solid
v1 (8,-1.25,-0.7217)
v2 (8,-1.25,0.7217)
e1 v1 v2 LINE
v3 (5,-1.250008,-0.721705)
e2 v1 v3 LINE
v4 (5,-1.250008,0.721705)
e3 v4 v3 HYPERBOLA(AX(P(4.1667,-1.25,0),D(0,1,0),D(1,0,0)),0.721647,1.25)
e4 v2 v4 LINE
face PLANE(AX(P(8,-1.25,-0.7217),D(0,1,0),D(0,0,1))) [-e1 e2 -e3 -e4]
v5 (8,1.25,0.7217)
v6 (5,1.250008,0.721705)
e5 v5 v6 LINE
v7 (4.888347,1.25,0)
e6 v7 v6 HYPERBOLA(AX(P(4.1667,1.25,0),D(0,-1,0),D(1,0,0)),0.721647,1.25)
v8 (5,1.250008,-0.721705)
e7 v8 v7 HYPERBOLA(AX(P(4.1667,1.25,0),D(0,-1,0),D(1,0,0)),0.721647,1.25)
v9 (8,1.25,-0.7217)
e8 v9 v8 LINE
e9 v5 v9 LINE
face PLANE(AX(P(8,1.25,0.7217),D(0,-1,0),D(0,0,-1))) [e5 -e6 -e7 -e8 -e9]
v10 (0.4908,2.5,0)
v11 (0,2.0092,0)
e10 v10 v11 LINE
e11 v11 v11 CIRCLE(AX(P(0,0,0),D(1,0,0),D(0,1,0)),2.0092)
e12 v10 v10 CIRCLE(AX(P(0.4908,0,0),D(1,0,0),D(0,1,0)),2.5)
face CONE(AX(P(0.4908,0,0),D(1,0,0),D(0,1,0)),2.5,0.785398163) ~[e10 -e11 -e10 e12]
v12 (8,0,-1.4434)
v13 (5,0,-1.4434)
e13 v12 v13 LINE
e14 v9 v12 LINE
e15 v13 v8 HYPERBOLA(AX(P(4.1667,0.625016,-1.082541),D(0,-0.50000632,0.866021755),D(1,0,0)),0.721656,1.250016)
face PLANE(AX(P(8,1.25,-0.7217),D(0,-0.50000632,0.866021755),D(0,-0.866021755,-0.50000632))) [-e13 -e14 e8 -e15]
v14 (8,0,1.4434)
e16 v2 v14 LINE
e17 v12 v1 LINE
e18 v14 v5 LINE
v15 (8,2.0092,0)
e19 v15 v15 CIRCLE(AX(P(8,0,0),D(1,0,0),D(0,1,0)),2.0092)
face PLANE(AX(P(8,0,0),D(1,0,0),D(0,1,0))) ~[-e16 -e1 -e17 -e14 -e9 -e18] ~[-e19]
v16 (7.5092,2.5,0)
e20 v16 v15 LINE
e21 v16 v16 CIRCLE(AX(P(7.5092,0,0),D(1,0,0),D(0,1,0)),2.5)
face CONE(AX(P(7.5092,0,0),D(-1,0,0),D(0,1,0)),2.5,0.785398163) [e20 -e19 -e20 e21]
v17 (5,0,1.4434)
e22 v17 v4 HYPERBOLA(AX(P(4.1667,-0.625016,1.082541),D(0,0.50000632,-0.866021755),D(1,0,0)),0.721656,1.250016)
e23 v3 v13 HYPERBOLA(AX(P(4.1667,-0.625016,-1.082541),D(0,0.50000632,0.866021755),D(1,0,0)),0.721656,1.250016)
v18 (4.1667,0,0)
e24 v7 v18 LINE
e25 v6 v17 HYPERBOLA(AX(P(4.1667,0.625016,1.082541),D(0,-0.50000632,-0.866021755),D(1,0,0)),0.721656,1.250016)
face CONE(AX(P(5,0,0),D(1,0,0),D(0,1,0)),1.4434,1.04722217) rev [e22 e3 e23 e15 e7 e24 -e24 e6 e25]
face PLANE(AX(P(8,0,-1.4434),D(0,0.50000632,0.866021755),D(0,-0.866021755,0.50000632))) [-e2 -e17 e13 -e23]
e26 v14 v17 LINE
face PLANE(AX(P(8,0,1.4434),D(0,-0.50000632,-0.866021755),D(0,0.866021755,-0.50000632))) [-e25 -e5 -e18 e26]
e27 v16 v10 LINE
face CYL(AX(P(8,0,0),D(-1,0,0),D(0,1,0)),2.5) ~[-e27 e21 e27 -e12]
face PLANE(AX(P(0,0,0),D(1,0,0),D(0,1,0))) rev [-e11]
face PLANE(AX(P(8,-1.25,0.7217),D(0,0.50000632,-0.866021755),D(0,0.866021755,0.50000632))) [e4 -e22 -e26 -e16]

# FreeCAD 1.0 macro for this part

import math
import FreeCAD as App
import Part
import Sketcher
Q = App.Units.Quantity


def edges_at(feature, points):
    """Names of the edges that pass closest to the given points."""
    edges = feature.Shape.Edges
    near = lambda p: min(range(len(edges)), key=lambda i: edges[i].distToShape(Part.Vertex(*p))[0])
    return sorted({f"Edge{near(p) + 1}" for p in points})

doc = App.newDocument("Part")
body = doc.addObject("PartDesign::Body", "Body")

# Sketch on XY plane
sketch1 = body.newObject("Sketcher::SketchObject", "Sketch")
sketch1.AttachmentSupport = (doc.getObject("XY_Plane"), [""])
sketch1.MapMode = "FlatFace"
sketch1.addGeometry(Part.LineSegment(App.Vector(0, 2.5, 0), App.Vector(0, 0, 0)), False)
sketch1.addGeometry(Part.LineSegment(App.Vector(0, 0, 0), App.Vector(4.2, 0, 0)), False)
sketch1.addGeometry(Part.LineSegment(App.Vector(4.2, 0, 0), App.Vector(5, 1.4, 0)), False)
sketch1.addGeometry(Part.LineSegment(App.Vector(5, 1.4, 0), App.Vector(8, 1.4, 0)), False)
sketch1.addGeometry(Part.LineSegment(App.Vector(8, 1.4, 0), App.Vector(8, 2.5, 0)), False)
sketch1.addGeometry(Part.LineSegment(App.Vector(8, 2.5, 0), App.Vector(0, 2.5, 0)), False)
sketch1.addConstraint(Sketcher.Constraint("Coincident", 0, 2, 1, 1))
sketch1.addConstraint(Sketcher.Constraint("Coincident", 1, 2, 2, 1))
sketch1.addConstraint(Sketcher.Constraint("Coincident", 2, 2, 3, 1))
sketch1.addConstraint(Sketcher.Constraint("Coincident", 3, 2, 4, 1))
sketch1.addConstraint(Sketcher.Constraint("Coincident", 4, 2, 5, 1))
sketch1.addConstraint(Sketcher.Constraint("Coincident", 5, 2, 0, 1))
sketch1.addConstraint(Sketcher.Constraint("Vertical", 0))
sketch1.addConstraint(Sketcher.Constraint("Horizontal", 1))
sketch1.addConstraint(Sketcher.Constraint("Horizontal", 3))
sketch1.addConstraint(Sketcher.Constraint("Vertical", 4))
sketch1.addConstraint(Sketcher.Constraint("Horizontal", 5))
sketch1.addConstraint(Sketcher.Constraint("Coincident", 0, 2, -1, 1))
sketch1.addConstraint(Sketcher.Constraint("DistanceX", 3, 1, 3, 2, Q("3 mm")))
sketch1.addConstraint(Sketcher.Constraint("DistanceX", 5, 2, 5, 1, Q("8 mm")))
sketch1.addConstraint(Sketcher.Constraint("DistanceY", 0, 2, 0, 1, Q("2.5 mm")))
sketch1.addConstraint(Sketcher.Constraint("DistanceX", 1, 1, 1, 2, Q("4.1667 mm")))
sketch1.addConstraint(Sketcher.Constraint("DistanceY", 4, 1, 4, 2, Q("1.0566 mm")))
revolution = body.newObject("PartDesign::Revolution", "Revolution")
revolution.Profile = sketch1
revolution.ReferenceAxis = (sketch1, ["H_Axis"])
revolution.Angle = 360
doc.recompute()

chamfer = body.newObject("PartDesign::Chamfer", "Chamfer")
chamfer.Base = (revolution, edges_at(revolution, [(8, -2.5, 0)]))
chamfer.Size = 0.4908

# Sketch on YZ plane
sketch2 = body.newObject("Sketcher::SketchObject", "Sketch001")
sketch2.AttachmentSupport = (doc.getObject("YZ_Plane"), [""])
sketch2.MapMode = "FlatFace"
sketch2.AttachmentOffset = App.Placement(App.Vector(0, 0, 8), App.Rotation())
sketch2.addGeometry(Part.LineSegment(App.Vector(1.2, -0.7, 0), App.Vector(0, -1.4, 0)), False)
sketch2.addGeometry(Part.ArcOfCircle(Part.Circle(App.Vector(0, 0, 0), App.Vector(0, 0, 1), 1.4), math.radians(-90), math.radians(-30)), False)
sketch2.addGeometry(Part.ArcOfCircle(Part.Circle(App.Vector(0, 0, 0), App.Vector(0, 0, 1), 1.4), math.radians(-150), math.radians(-90)), False)
sketch2.addGeometry(Part.LineSegment(App.Vector(0, -1.4, 0), App.Vector(-1.2, -0.7, 0)), False)
sketch2.addGeometry(Part.LineSegment(App.Vector(1.2, 0.7, 0), App.Vector(1.2, -0.7, 0)), False)
sketch2.addGeometry(Part.ArcOfCircle(Part.Circle(App.Vector(0, 0, 0), App.Vector(0, 0, 1), 1.4), math.radians(-30), math.radians(30)), False)
sketch2.addGeometry(Part.ArcOfCircle(Part.Circle(App.Vector(0, 0, 0), App.Vector(0, 0, 1), 1.4), math.radians(150), math.radians(210)), False)
sketch2.addGeometry(Part.LineSegment(App.Vector(-1.2, 0.7, 0), App.Vector(-1.2, -0.7, 0)), False)
sketch2.addGeometry(Part.LineSegment(App.Vector(0, 1.4, 0), App.Vector(1.2, 0.7, 0)), False)
sketch2.addGeometry(Part.ArcOfCircle(Part.Circle(App.Vector(0, 0, 0), App.Vector(0, 0, 1), 1.4), math.radians(30), math.radians(90)), False)
sketch2.addGeometry(Part.ArcOfCircle(Part.Circle(App.Vector(0, 0, 0), App.Vector(0, 0, 1), 1.4), math.radians(90), math.radians(150)), False)
sketch2.addGeometry(Part.LineSegment(App.Vector(0, 1.4, 0), App.Vector(-1.2, 0.7, 0)), False)
sketch2.addConstraint(Sketcher.Constraint("Coincident", 0, 1, 1, 2))
sketch2.addConstraint(Sketcher.Constraint("Coincident", 1, 1, 0, 2))
sketch2.addConstraint(Sketcher.Constraint("Coincident", 2, 1, 3, 2))
sketch2.addConstraint(Sketcher.Constraint("Coincident", 3, 1, 2, 2))
sketch2.addConstraint(Sketcher.Constraint("Coincident", 4, 1, 5, 2))
sketch2.addConstraint(Sketcher.Constraint("Coincident", 5, 1, 4, 2))
sketch2.addConstraint(Sketcher.Constraint("Coincident", 6, 1, 7, 1))
sketch2.addConstraint(Sketcher.Constraint("Coincident", 7, 2, 6, 2))
sketch2.addConstraint(Sketcher.Constraint("Coincident", 8, 1, 9, 2))
sketch2.addConstraint(Sketcher.Constraint("Coincident", 9, 1, 8, 2))
sketch2.addConstraint(Sketcher.Constraint("Coincident", 10, 1, 11, 1))
sketch2.addConstraint(Sketcher.Constraint("Coincident", 11, 2, 10, 2))
sketch2.addConstraint(Sketcher.Constraint("Vertical", 4))
sketch2.addConstraint(Sketcher.Constraint("Vertical", 7))
sketch2.addConstraint(Sketcher.Constraint("Coincident", 1, 3, -1, 1))
sketch2.addConstraint(Sketcher.Constraint("Coincident", 2, 3, -1, 1))
sketch2.addConstraint(Sketcher.Constraint("Coincident", 5, 3, -1, 1))
sketch2.addConstraint(Sketcher.Constraint("Coincident", 6, 3, -1, 1))
sketch2.addConstraint(Sketcher.Constraint("Coincident", 9, 3, -1, 1))
sketch2.addConstraint(Sketcher.Constraint("Coincident", 10, 3, -1, 1))
sketch2.addConstraint(Sketcher.Constraint("Coincident", 3, 1, 1, 1))
sketch2.addConstraint(Sketcher.Constraint("Coincident", 5, 1, 0, 1))
sketch2.addConstraint(Sketcher.Constraint("Coincident", 7, 2, 2, 1))
sketch2.addConstraint(Sketcher.Constraint("Coincident", 9, 1, 4, 1))
sketch2.addConstraint(Sketcher.Constraint("Coincident", 10, 1, 8, 1))
sketch2.addConstraint(Sketcher.Constraint("PointOnObject", 1, 1, -2))
sketch2.addConstraint(Sketcher.Constraint("PointOnObject", 8, 1, -2))
sketch2.addConstraint(Sketcher.Constraint("Parallel", 3, 8))
sketch2.addConstraint(Sketcher.Constraint("Parallel", 0, 11))
sketch2.addConstraint(Sketcher.Constraint("Angle", 0, Q("-149.9996 deg")))
sketch2.addConstraint(Sketcher.Constraint("Radius", 1, Q("1.4434 mm")))
pad1 = body.newObject("PartDesign::Pad", "Pad")
pad1.Profile = sketch2
pad1.Type = "UpToFirst"
pad1.Reversed = True
doc.recompute()

chamfer2 = body.newObject("PartDesign::Chamfer", "Chamfer001")
chamfer2.Base = (pad1, edges_at(pad1, [(0, -2.5, 0)]))
chamfer2.Size = 0.4908

doc.recompute()
